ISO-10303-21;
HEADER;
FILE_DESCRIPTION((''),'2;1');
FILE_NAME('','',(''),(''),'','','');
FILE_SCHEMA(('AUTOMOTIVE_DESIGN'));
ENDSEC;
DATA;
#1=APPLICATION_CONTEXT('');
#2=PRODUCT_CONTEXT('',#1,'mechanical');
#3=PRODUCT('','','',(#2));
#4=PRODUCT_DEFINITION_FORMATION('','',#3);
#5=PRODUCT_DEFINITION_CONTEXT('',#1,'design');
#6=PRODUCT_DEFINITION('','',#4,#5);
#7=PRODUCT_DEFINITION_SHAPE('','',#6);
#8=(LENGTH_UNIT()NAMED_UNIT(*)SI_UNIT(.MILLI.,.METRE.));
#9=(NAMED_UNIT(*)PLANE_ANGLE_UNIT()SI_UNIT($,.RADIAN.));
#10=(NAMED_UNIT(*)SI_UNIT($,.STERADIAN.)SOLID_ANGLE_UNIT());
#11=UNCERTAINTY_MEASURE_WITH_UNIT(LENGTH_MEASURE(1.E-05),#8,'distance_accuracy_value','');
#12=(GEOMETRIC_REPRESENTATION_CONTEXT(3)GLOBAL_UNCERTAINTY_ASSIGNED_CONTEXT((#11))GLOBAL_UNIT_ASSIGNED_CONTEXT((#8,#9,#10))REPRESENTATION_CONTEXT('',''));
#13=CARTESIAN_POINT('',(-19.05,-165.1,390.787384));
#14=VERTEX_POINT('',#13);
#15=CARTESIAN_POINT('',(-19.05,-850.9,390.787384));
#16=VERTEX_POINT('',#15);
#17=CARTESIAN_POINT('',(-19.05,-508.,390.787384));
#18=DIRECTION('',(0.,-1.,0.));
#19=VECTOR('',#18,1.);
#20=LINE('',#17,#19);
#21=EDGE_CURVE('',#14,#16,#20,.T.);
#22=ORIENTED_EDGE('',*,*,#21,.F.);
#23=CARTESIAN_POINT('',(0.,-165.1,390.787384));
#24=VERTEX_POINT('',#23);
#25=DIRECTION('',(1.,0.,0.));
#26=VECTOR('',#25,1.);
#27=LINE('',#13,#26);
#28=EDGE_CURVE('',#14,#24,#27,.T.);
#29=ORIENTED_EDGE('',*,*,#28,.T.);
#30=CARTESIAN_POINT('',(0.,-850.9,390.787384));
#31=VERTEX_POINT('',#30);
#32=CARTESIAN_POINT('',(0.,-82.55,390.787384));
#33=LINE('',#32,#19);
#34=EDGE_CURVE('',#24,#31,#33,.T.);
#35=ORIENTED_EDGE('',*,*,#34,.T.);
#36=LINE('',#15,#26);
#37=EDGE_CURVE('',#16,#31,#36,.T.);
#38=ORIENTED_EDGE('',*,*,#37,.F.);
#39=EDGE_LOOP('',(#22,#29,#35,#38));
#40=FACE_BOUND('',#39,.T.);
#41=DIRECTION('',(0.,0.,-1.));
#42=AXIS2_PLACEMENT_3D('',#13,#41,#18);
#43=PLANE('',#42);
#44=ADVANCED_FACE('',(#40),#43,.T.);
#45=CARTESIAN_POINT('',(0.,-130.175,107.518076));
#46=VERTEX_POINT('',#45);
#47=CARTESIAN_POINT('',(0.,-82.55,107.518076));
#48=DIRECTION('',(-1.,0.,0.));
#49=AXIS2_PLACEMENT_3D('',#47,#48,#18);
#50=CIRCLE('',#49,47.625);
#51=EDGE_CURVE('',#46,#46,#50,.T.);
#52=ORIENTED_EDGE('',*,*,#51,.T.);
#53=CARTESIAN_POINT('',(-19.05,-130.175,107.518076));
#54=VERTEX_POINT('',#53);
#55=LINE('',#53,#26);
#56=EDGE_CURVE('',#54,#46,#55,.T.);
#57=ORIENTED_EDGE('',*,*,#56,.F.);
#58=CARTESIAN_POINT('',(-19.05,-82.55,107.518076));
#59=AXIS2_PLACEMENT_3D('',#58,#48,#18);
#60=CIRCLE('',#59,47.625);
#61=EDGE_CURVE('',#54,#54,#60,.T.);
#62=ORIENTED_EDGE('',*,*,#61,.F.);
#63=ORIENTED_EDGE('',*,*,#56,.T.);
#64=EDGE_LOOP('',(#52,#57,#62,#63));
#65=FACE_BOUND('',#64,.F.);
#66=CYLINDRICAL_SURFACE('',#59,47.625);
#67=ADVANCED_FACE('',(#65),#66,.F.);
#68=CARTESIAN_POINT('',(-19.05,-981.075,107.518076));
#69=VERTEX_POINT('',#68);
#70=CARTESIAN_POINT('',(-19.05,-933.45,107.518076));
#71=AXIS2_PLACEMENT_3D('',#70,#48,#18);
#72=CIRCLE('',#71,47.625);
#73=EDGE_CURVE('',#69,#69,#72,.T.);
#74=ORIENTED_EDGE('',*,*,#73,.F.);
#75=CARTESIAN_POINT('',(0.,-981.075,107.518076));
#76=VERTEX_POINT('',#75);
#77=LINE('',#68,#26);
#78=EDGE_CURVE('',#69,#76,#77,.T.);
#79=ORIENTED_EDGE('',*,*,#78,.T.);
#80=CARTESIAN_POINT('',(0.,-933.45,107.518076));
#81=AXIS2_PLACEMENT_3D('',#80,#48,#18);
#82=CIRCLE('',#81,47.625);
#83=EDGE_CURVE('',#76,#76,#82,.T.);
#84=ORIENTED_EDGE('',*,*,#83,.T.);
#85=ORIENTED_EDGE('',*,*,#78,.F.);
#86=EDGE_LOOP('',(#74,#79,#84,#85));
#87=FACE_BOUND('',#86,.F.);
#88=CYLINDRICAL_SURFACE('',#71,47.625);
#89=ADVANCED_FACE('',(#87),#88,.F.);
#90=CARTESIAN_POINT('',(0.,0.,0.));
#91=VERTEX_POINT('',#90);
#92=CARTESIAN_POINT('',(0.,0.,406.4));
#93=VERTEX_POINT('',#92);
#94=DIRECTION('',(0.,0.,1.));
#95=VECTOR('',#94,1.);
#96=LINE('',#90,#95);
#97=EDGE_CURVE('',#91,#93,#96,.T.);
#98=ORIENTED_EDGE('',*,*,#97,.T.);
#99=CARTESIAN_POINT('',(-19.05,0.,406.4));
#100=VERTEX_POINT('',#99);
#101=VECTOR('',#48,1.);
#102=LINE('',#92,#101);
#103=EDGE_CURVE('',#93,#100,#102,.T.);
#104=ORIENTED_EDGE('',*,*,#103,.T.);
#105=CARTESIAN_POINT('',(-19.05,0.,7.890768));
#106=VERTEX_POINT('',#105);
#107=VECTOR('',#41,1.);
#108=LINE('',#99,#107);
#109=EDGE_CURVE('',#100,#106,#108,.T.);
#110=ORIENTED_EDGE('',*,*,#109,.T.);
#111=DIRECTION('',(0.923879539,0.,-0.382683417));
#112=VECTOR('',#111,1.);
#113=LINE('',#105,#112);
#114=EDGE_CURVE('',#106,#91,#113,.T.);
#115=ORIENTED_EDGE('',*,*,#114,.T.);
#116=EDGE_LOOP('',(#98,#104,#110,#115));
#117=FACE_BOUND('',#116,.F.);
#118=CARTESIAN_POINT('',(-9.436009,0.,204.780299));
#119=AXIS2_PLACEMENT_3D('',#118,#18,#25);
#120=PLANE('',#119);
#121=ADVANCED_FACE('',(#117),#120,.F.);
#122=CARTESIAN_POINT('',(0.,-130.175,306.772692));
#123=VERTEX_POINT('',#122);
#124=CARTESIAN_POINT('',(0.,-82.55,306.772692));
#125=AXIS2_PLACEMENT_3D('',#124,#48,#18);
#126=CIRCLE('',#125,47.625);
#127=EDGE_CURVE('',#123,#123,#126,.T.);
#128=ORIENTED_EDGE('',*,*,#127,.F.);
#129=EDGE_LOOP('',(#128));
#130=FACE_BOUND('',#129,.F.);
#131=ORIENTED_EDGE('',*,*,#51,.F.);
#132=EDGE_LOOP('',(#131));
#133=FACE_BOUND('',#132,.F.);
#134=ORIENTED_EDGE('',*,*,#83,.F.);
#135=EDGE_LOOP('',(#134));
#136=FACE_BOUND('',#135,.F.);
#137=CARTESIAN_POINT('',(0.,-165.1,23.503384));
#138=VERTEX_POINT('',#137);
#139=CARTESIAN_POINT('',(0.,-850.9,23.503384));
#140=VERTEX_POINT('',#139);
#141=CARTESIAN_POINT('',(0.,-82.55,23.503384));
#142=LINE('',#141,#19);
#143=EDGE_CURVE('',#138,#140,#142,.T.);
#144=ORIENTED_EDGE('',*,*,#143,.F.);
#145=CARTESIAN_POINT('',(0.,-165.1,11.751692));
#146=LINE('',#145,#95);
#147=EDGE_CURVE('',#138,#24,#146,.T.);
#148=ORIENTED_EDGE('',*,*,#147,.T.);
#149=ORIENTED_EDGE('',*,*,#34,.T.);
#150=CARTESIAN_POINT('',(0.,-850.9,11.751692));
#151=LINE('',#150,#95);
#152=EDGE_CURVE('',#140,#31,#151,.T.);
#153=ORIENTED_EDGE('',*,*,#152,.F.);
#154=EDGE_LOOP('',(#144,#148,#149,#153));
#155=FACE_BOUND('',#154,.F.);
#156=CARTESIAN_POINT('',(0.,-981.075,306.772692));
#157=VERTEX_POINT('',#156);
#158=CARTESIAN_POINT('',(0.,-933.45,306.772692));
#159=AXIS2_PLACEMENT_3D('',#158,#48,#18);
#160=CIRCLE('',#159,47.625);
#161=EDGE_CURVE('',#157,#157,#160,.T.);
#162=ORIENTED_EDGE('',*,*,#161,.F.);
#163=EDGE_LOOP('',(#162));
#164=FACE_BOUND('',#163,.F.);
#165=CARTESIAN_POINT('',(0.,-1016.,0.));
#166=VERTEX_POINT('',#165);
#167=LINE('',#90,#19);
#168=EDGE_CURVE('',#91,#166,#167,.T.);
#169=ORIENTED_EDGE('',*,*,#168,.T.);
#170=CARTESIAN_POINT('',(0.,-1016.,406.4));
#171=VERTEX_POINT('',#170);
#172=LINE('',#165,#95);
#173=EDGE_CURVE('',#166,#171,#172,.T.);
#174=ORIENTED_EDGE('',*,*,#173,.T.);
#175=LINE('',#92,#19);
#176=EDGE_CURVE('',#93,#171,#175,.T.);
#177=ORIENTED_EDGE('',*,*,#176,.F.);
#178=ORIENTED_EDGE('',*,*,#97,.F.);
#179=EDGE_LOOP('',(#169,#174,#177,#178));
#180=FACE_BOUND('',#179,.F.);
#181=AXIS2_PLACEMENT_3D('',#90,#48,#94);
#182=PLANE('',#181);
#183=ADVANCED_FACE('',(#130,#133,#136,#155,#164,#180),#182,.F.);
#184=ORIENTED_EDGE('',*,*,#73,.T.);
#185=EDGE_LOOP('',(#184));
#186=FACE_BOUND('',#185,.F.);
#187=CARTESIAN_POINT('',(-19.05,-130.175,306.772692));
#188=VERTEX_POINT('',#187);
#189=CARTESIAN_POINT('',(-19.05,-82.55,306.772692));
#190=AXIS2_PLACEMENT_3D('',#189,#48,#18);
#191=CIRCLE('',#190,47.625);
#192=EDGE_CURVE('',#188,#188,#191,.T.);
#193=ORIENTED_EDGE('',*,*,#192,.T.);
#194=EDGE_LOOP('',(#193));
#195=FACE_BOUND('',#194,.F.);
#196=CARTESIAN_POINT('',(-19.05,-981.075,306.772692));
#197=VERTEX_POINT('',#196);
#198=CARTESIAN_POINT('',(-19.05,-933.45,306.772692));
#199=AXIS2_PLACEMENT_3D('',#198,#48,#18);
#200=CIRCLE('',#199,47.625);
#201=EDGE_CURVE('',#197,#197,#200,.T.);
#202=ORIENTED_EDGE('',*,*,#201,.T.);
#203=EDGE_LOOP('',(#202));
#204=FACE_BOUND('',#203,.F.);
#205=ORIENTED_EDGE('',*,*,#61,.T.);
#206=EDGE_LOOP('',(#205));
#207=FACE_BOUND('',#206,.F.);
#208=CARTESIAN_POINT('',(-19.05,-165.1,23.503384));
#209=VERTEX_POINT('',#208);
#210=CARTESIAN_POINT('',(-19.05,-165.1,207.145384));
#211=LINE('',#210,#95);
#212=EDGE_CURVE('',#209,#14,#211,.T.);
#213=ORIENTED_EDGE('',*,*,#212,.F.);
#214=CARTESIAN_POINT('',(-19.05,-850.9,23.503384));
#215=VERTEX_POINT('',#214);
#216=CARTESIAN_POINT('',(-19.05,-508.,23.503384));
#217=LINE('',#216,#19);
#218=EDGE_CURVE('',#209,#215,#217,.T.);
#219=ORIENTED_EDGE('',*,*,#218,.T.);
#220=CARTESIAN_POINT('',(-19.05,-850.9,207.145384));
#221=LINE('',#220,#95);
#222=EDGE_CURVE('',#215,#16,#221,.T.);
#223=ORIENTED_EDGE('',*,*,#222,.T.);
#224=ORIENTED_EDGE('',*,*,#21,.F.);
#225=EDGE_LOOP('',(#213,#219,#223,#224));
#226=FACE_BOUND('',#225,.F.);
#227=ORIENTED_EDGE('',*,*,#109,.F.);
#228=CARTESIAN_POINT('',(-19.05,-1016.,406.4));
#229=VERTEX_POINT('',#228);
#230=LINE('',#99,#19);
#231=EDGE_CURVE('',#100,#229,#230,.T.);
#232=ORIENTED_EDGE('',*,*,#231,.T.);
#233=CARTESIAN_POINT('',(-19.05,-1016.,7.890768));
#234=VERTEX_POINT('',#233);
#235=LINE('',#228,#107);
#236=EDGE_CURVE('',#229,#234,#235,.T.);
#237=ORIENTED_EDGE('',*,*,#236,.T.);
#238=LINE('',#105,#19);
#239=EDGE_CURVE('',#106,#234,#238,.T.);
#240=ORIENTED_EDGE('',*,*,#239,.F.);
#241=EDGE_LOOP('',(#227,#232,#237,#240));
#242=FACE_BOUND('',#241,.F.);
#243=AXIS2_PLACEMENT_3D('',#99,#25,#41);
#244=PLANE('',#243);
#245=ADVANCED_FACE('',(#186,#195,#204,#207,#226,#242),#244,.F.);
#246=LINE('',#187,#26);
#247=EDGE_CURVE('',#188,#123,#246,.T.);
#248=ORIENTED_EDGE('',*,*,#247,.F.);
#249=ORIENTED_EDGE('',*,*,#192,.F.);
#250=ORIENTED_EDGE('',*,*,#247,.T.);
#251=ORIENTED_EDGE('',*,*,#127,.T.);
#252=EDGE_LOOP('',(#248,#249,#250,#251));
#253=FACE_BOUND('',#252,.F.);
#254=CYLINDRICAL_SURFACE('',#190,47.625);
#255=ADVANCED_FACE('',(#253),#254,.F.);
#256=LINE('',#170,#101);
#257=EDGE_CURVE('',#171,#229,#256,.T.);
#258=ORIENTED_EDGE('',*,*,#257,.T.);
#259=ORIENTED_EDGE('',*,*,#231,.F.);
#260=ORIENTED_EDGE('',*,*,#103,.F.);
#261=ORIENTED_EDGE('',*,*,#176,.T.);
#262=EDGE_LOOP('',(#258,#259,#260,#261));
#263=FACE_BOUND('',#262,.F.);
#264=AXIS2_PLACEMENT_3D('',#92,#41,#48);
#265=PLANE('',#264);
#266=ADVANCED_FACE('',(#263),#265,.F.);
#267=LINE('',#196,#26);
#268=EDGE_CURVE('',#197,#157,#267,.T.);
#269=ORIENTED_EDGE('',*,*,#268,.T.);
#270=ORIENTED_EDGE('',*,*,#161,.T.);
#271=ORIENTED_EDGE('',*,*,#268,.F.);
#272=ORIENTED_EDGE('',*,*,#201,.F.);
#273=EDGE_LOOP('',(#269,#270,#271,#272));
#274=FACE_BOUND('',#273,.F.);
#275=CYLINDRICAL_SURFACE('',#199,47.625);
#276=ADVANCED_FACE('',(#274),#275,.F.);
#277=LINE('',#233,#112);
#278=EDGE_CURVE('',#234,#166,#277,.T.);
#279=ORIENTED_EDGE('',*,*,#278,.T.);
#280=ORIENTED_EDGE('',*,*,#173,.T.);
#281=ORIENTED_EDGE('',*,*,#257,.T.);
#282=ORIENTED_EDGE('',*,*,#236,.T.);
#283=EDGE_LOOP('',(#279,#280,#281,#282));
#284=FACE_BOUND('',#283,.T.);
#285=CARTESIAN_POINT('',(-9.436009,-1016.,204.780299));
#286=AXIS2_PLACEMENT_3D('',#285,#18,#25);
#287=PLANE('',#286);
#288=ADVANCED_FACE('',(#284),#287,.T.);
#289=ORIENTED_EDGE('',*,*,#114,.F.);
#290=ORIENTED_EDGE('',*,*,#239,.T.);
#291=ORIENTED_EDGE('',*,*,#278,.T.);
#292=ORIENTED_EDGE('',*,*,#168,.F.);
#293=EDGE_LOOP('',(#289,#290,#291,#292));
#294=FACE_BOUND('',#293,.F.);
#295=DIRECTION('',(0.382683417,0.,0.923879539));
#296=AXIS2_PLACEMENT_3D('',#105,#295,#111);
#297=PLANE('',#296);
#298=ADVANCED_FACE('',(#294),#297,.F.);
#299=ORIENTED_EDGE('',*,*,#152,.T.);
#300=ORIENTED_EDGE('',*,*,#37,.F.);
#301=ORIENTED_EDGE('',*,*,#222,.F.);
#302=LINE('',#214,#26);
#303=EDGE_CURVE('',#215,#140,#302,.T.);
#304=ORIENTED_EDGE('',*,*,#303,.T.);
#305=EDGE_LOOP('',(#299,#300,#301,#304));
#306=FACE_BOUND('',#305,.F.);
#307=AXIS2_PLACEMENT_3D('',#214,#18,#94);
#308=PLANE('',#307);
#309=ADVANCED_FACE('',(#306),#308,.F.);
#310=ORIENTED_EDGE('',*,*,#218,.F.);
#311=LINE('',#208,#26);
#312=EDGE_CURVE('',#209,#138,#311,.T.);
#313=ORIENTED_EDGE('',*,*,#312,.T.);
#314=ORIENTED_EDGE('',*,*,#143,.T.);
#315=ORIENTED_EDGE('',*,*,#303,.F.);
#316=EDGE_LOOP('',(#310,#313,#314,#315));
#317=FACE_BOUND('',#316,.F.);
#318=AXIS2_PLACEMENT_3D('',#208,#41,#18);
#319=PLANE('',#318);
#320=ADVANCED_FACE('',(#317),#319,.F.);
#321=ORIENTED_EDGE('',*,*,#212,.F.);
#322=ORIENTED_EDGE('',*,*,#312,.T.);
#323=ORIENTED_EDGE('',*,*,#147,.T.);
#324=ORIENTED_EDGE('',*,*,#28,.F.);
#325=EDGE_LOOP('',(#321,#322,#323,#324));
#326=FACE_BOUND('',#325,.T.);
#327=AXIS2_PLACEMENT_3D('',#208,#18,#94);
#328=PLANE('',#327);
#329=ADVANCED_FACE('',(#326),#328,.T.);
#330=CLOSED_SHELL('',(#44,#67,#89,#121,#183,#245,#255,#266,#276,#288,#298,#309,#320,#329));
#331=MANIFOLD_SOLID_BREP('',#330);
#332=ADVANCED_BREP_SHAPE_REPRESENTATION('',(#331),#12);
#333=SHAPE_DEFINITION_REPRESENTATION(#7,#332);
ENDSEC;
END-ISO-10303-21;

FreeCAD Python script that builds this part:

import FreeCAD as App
import Part
import Sketcher
Q = App.Units.Quantity


def add_polygon(sketch, points):
    """Adds a closed chain of lines whose ends are joined by coincident constraints."""
    first, n = sketch.GeometryCount, len(points)
    for a, b in zip(points, points[1:] + points[:1]):
        sketch.addGeometry(Part.LineSegment(App.Vector(*a, 0), App.Vector(*b, 0)), False)
    for i in range(n):
        sketch.addConstraint(Sketcher.Constraint("Coincident", first + i, 2, first + (i + 1) % n, 1))

doc = App.newDocument("Part")
body = doc.addObject("PartDesign::Body", "Body")

sketch1 = body.newObject("Sketcher::SketchObject", "Sketch")
sketch1.AttachmentSupport = (doc.getObject("XZ_Plane"), [""])
sketch1.MapMode = "FlatFace"
add_polygon(sketch1, [(-19, 8), (0, 0), (0, 406), (-19, 406)])
sketch1.addConstraint([
    Sketcher.Constraint("Vertical", 1),
    Sketcher.Constraint("Horizontal", 2),
    Sketcher.Constraint("Vertical", 3),
    Sketcher.Constraint("Coincident", 0, 2, -1, 1),
    Sketcher.Constraint("DistanceY", 1, 1, 1, 2, Q("16 in")),
    Sketcher.Constraint("DistanceX", 2, 2, 2, 1, Q("0.75 in")),
    Sketcher.Constraint("Angle", 0, Q("-22.499999 deg")),
])
pad1 = body.newObject("PartDesign::Pad", "Pad")
pad1.Profile = sketch1
pad1.Length = Q("40 in")

sketch2 = body.newObject("Sketcher::SketchObject", "Sketch001")
sketch2.AttachmentSupport = (doc.getObject("YZ_Plane"), [""])
sketch2.MapMode = "FlatFace"
sketch2.AttachmentOffset = App.Placement(App.Vector(0, 0, -0.75 * 25.4), App.Rotation())
add_polygon(sketch2, [(-165, 391), (-165, 24), (-851, 24), (-851, 391)])
sketch2.addConstraint([
    Sketcher.Constraint("Vertical", 0),
    Sketcher.Constraint("Horizontal", 1),
    Sketcher.Constraint("Vertical", 2),
    Sketcher.Constraint("Horizontal", 3),
    Sketcher.Constraint("DistanceX", 1, 2, 1, 1, Q("27 in")),
    Sketcher.Constraint("DistanceY", 0, 2, 0, 1, Q("14.46 in")),
    Sketcher.Constraint("DistanceX", 0, 2, -1, 1, Q("6.5 in")),
    Sketcher.Constraint("DistanceY", -1, 1, 0, 2, 23.503384),
])
pocket1 = body.newObject("PartDesign::Pocket", "Pocket")
pocket1.Profile = sketch2
pocket1.Type = "ThroughAll"
pocket1.Reversed = True

sketch3 = body.newObject("Sketcher::SketchObject", "Sketch002")
sketch3.AttachmentSupport = (doc.getObject("YZ_Plane"), [""])
sketch3.MapMode = "FlatFace"
sketch3.AttachmentOffset = App.Placement(App.Vector(0, 0, -0.75 * 25.4), App.Rotation())
sketch3.addGeometry([
    Part.Circle(App.Vector(-83, 307, 0), App.Vector(0, 0, 1), 48),
    Part.Circle(App.Vector(-83, 108, 0), App.Vector(0, 0, 1), 48),
    Part.Circle(App.Vector(-933, 307, 0), App.Vector(0, 0, 1), 48),
    Part.Circle(App.Vector(-933, 108, 0), App.Vector(0, 0, 1), 48),
], False)
sketch3.addConstraint([
    Sketcher.Constraint("Equal", 0, 1),
    Sketcher.Constraint("Equal", 1, 2),
    Sketcher.Constraint("Equal", 2, 3),
    Sketcher.Constraint("Horizontal", 0, 3, 2, 3),
    Sketcher.Constraint("Horizontal", 1, 3, 3, 3),
    Sketcher.Constraint("Vertical", 0, 3, 1, 3),
    Sketcher.Constraint("Vertical", 2, 3, 3, 3),
    Sketcher.Constraint("Diameter", 0, Q("3.75 in")),
    Sketcher.Constraint("DistanceX", 2, 3, 0, 3, Q("33.5 in")),
    Sketcher.Constraint("DistanceX", 0, 3, -1, 1, Q("3.25 in")),
    Sketcher.Constraint("DistanceY", -1, 1, 0, 3, 306.772692),
    Sketcher.Constraint("DistanceY", -1, 1, 1, 3, 107.518076),
])
pocket2 = body.newObject("PartDesign::Pocket", "Pocket001")
pocket2.Profile = sketch3
pocket2.Type = "ThroughAll"
pocket2.Reversed = True

doc.recompute()
